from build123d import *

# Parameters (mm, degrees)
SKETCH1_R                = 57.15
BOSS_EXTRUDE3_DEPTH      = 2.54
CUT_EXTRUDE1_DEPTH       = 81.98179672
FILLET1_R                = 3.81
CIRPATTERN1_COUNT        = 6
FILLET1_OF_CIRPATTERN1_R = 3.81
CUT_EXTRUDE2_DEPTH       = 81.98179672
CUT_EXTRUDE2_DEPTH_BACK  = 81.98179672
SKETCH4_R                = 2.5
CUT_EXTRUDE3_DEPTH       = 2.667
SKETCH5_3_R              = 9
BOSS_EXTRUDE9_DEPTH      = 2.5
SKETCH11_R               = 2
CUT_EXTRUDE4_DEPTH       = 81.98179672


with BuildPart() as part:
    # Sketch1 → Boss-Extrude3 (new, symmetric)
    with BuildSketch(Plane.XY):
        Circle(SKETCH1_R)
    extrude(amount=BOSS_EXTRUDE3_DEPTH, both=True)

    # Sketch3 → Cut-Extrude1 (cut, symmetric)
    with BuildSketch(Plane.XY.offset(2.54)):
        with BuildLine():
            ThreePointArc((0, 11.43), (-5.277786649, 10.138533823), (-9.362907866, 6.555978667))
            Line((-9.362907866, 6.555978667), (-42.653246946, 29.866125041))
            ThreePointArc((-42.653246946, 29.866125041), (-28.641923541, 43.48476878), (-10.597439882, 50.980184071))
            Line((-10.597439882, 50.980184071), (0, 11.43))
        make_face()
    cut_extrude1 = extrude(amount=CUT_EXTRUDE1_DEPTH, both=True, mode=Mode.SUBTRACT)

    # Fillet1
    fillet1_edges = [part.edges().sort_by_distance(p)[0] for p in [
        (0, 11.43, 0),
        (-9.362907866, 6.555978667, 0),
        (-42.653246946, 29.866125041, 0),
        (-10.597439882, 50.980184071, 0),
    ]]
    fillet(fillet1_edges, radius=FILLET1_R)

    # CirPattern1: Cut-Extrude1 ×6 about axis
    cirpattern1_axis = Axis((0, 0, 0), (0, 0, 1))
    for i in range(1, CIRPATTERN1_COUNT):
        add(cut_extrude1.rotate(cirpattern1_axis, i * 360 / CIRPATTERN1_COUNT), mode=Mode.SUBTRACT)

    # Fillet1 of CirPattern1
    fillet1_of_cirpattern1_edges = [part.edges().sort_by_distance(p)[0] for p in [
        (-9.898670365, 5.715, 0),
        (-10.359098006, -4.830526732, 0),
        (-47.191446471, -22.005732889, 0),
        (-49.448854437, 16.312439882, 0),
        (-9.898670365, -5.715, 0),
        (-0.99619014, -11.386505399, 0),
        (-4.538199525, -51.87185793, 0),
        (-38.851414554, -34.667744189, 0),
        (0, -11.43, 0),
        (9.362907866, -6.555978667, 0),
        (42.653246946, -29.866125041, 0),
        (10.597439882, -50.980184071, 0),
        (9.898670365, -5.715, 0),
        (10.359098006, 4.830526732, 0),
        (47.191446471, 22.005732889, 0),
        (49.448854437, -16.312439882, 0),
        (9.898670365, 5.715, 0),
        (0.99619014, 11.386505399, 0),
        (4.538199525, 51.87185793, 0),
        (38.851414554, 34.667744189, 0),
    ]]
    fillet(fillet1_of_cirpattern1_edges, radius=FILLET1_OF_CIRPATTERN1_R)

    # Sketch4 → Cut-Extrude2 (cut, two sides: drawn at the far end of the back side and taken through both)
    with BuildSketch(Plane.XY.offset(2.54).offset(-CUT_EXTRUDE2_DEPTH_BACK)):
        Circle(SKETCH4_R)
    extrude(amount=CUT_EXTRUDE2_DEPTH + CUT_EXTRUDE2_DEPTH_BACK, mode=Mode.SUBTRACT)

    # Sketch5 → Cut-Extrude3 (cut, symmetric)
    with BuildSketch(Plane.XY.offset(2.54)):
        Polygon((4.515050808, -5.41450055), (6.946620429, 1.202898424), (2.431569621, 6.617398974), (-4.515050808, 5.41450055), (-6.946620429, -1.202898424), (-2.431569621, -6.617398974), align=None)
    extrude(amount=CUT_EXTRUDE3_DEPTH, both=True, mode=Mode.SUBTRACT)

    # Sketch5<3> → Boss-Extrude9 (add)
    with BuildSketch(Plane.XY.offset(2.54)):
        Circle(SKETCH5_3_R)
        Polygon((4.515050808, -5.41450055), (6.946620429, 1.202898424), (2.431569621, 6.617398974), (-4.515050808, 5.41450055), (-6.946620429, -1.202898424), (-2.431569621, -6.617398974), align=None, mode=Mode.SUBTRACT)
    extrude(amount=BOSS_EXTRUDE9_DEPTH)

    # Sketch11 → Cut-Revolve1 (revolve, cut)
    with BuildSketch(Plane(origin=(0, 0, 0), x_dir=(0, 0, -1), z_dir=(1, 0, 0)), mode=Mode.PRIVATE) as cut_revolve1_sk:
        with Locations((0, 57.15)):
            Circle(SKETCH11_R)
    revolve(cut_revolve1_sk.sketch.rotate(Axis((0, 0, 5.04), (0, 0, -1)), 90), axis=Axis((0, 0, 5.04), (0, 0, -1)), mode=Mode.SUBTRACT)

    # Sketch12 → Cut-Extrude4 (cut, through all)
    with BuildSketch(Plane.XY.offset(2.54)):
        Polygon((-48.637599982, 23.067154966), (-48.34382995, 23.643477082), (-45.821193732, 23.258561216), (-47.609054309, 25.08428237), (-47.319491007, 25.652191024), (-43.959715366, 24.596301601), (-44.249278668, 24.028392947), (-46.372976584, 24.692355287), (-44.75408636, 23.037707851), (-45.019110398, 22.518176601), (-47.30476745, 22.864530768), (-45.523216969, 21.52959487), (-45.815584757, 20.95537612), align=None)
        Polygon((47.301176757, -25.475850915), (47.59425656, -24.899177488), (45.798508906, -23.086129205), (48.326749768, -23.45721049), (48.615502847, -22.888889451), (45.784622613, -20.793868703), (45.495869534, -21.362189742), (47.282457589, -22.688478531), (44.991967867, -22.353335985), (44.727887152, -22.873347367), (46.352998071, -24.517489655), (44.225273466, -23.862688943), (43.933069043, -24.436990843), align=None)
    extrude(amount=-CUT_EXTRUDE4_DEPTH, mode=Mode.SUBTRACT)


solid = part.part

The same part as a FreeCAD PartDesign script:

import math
import FreeCAD as App
import Part
import Sketcher
from FreeCAD import Vector
Q = App.Units.Quantity


def edges_at(feature, points):
    """Names of the edges that pass closest to the given points."""
    edges = feature.Shape.Edges
    near = lambda p: min(range(len(edges)), key=lambda i: edges[i].distToShape(Part.Vertex(*p))[0])
    return sorted({f"Edge{near(p) + 1}" for p in points})


def add_polygon(sketch, points):
    """Adds a closed chain of lines whose ends are joined by coincident constraints."""
    first, n = sketch.GeometryCount, len(points)
    for a, b in zip(points, points[1:] + points[:1]):
        sketch.addGeometry(Part.LineSegment(App.Vector(*a, 0), App.Vector(*b, 0)), False)
    for i in range(n):
        sketch.addConstraint(Sketcher.Constraint("Coincident", first + i, 2, first + (i + 1) % n, 1))

doc = App.newDocument("Part")
body = doc.addObject("PartDesign::Body", "Body")

# Sketch on XY plane
sketch1 = body.newObject("Sketcher::SketchObject", "Sketch")
sketch1.AttachmentSupport = (doc.getObject("XY_Plane"), [""])
sketch1.MapMode = "FlatFace"
sketch1.addGeometry(Part.Circle(Vector(0, 0, 0), Vector(0, 0, 1), 57.15), False)
sketch1.addConstraint([
    Sketcher.Constraint("Coincident", 0, 3, -1, 1),
    Sketcher.Constraint("Diameter", 0, Q("4.5 in")),
])
pad1 = body.newObject("PartDesign::Pad", "Pad")
pad1.Profile = sketch1
pad1.Length = Q("0.2 in")
pad1.Midplane = True

# Sketch on XY plane
sketch2 = body.newObject("Sketcher::SketchObject", "Sketch001")
sketch2.AttachmentSupport = (doc.getObject("XY_Plane"), [""])
sketch2.MapMode = "FlatFace"
sketch2.AttachmentOffset = App.Placement(Vector(0, 0, 0.1 * 25.4), App.Rotation())
sketch2.addGeometry([
    Part.ArcOfCircle(Part.Circle(Vector(0, 0, 0), Vector(0, 0, 1), 11.43), math.radians(90), math.radians(145)),
    Part.LineSegment(Vector(0, 11.43, 0), Vector(-10.59744, 50.980184, 0)),
    Part.ArcOfCircle(Part.Circle(Vector(0, 0, 0), Vector(0, 0, 1), 52.07), math.radians(101.743047), math.radians(145)),
    Part.LineSegment(Vector(-42.653247, 29.866125, 0), Vector(-9.362908, 6.555979, 0)),
], False)
sketch2.addConstraint([
    Sketcher.Constraint("Coincident", 0, 1, 1, 1),
    Sketcher.Constraint("Coincident", 1, 2, 2, 1),
    Sketcher.Constraint("Coincident", 2, 2, 3, 1),
    Sketcher.Constraint("Coincident", 3, 2, 0, 2),
    Sketcher.Constraint("Coincident", 0, 3, -1, 1),
    Sketcher.Constraint("Coincident", 2, 3, -1, 1),
    Sketcher.Constraint("PointOnObject", 0, 1, -2),
    Sketcher.Constraint("Radius", 0, Q("0.45 in")),
    Sketcher.Constraint("Radius", 2, Q("2.05 in")),
    Sketcher.Constraint("Angle", 1, Q("105 deg")),
    Sketcher.Constraint("Angle", 3, Q("-35 deg")),
    Sketcher.Constraint("DistanceY", -1, 1, 3, 2, 6.555979),
])
pocket1 = body.newObject("PartDesign::Pocket", "Pocket")
pocket1.Profile = sketch2
pocket1.Length = 163.963593
pocket1.Midplane = True
doc.recompute()

fillet = body.newObject("PartDesign::Fillet", "Fillet")
fillet.Base = (pocket1, edges_at(pocket1, [
    (0, 11.43, 0),
    (-9.363, 6.556, 0),
    (-42.653, 29.866, 0),
    (-10.597, 50.98, 0),
]))
fillet.Radius = Q("0.15 in")
doc.recompute()

polarpattern = body.newObject("PartDesign::PolarPattern", "PolarPattern")
polarpattern.Originals = [pocket1]
polarpattern.Axis = (doc.getObject("Z_Axis"), [""])
polarpattern.Angle = 360
polarpattern.Occurrences = 6
body.Tip = polarpattern
doc.recompute()

fillet2 = body.newObject("PartDesign::Fillet", "Fillet001")
fillet2.Base = (polarpattern, edges_at(polarpattern, [
    (-9.899, 5.715, 0),
    (-10.359, -4.831, 0),
    (-47.191, -22.006, 0),
    (-49.449, 16.312, 0),
    (-9.899, -5.715, 0),
    (-0.996, -11.387, 0),
    (-4.538, -51.872, 0),
    (-38.851, -34.668, 0),
    (0, -11.43, 0),
    (9.363, -6.556, 0),
    (42.653, -29.866, 0),
    (10.597, -50.98, 0),
    (9.899, -5.715, 0),
    (10.359, 4.831, 0),
    (47.191, 22.006, 0),
    (49.449, -16.312, 0),
    (9.899, 5.715, 0),
    (0.996, 11.387, 0),
    (4.538, 51.872, 0),
    (38.851, 34.668, 0),
]))
fillet2.Radius = Q("0.15 in")

# Sketch on XY plane
sketch3 = body.newObject("Sketcher::SketchObject", "Sketch002")
sketch3.AttachmentSupport = (doc.getObject("XY_Plane"), [""])
sketch3.MapMode = "FlatFace"
sketch3.AttachmentOffset = App.Placement(Vector(0, 0, 0.1 * 25.4), App.Rotation())
sketch3.addGeometry(Part.Circle(Vector(0, 0, 0), Vector(0, 0, 1), 2.5), False)
sketch3.addConstraint([
    Sketcher.Constraint("Coincident", 0, 3, -1, 1),
    Sketcher.Constraint("Diameter", 0, 5.0),
])
pocket2 = body.newObject("PartDesign::Pocket", "Pocket001")
pocket2.Profile = sketch3
pocket2.Type = "ThroughAll"
pocket2.Midplane = True

# Sketch on XY plane
sketch4 = body.newObject("Sketcher::SketchObject", "Sketch003")
sketch4.AttachmentSupport = (doc.getObject("XY_Plane"), [""])
sketch4.MapMode = "FlatFace"
sketch4.AttachmentOffset = App.Placement(Vector(0, 0, 0.1 * 25.4), App.Rotation())
add_polygon(sketch4, [(4.515051, -5.414501), (6.94662, 1.202898), (2.43157, 6.617399), (-4.515051, 5.414501), (-6.94662, -1.202898), (-2.43157, -6.617399)])  # lines 0-5
sketch4.addConstraint([
    Sketcher.Constraint("Symmetric", 0, 2, 3, 2, -1, 1),
    Sketcher.Constraint("Symmetric", 1, 2, 4, 2, -1, 1),
    Sketcher.Constraint("Symmetric", 2, 2, 5, 2, -1, 1),
    Sketcher.Constraint("Equal", 0, 1),
    Sketcher.Constraint("Equal", 1, 2),
    Sketcher.Constraint("Distance", 0, 7.05),
    Sketcher.Constraint("DistanceY", -1, 1, 0, 2, 1.202898),
    Sketcher.Constraint("DistanceY", -1, 1, 1, 2, 6.617399),
    Sketcher.Constraint("DistanceY", -1, 1, 2, 2, 5.414501),
])
pocket3 = body.newObject("PartDesign::Pocket", "Pocket002")
pocket3.Profile = sketch4
pocket3.Length = Q("0.21 in")
pocket3.Midplane = True

# Sketch on XY plane
sketch5 = body.newObject("Sketcher::SketchObject", "Sketch004")
sketch5.AttachmentSupport = (doc.getObject("XY_Plane"), [""])
sketch5.MapMode = "FlatFace"
sketch5.AttachmentOffset = App.Placement(Vector(0, 0, 0.1 * 25.4), App.Rotation())
sketch5.addGeometry(Part.Circle(Vector(0, 0, 0), Vector(0, 0, 1), 9), False)  # 0
add_polygon(sketch5, [(6.94662, 1.202898), (4.515051, -5.414501), (-2.43157, -6.617399), (-6.94662, -1.202898), (-4.515051, 5.414501), (2.43157, 6.617399)])  # lines 1-6
sketch5.addConstraint([
    Sketcher.Constraint("Coincident", 0, 3, -1, 1),
    Sketcher.Constraint("Symmetric", 1, 2, 4, 2, -1, 1),
    Sketcher.Constraint("Symmetric", 2, 2, 5, 2, -1, 1),
    Sketcher.Constraint("Symmetric", 3, 2, 6, 2, -1, 1),
    Sketcher.Constraint("Equal", 1, 2),
    Sketcher.Constraint("Equal", 2, 3),
    Sketcher.Constraint("Diameter", 0, 18.0),
    Sketcher.Constraint("Distance", 1, 7.05),
    Sketcher.Constraint("DistanceY", 1, 2, -1, 1, 5.414501),
    Sketcher.Constraint("DistanceY", 2, 2, -1, 1, 6.617399),
    Sketcher.Constraint("DistanceY", 3, 2, -1, 1, 1.202898),
])
pad2 = body.newObject("PartDesign::Pad", "Pad001")
pad2.Profile = sketch5
pad2.Length = 2.5

# Sketch on YZ plane
sketch6 = body.newObject("Sketcher::SketchObject", "Sketch005")
sketch6.AttachmentSupport = (doc.getObject("YZ_Plane"), [""])
sketch6.MapMode = "FlatFace"
sketch6.addGeometry(Part.Circle(Vector(57.15, 0, 0), Vector(0, 0, 1), 2), False)
sketch6.addConstraint([
    Sketcher.Constraint("PointOnObject", 0, 3, -1),
    Sketcher.Constraint("Diameter", 0, 4.0),
    Sketcher.Constraint("DistanceX", -1, 1, 0, 3, Q("2.25 in")),
])
groove = body.newObject("PartDesign::Groove", "Groove")
groove.Profile = sketch6
groove.ReferenceAxis = (sketch6, ["V_Axis"])
groove.Angle = 360

# Sketch on XY plane
sketch7 = body.newObject("Sketcher::SketchObject", "Sketch006")
sketch7.AttachmentSupport = (doc.getObject("XY_Plane"), [""])
sketch7.MapMode = "FlatFace"
sketch7.AttachmentOffset = App.Placement(Vector(0, 0, 0.1 * 25.4), App.Rotation())
add_polygon(sketch7, [(-48.34383, 23.643477), (-48.6376, 23.067155), (-45.815585, 20.955376), (-45.523217, 21.529595), (-47.304767, 22.864531), (-45.01911, 22.518177), (-44.754086, 23.037708), (-46.372977, 24.692355), (-44.249279, 24.028393), (-43.959715, 24.596302), (-47.319491, 25.652191), (-47.609054, 25.084282), (-45.821194, 23.258561)])  # lines 0-12
add_polygon(sketch7, [(47.301177, -25.475851), (47.594257, -24.899177), (45.798509, -23.086129), (48.32675, -23.45721), (48.615503, -22.888889), (45.784623, -20.793869), (45.49587, -21.36219), (47.282458, -22.688479), (44.991968, -22.353336), (44.727887, -22.873347), (46.352998, -24.51749), (44.225273, -23.862689), (43.933069, -24.436991)])  # lines 13-25
sketch7.addConstraint([
    Sketcher.Constraint("Parallel", 8, 10),
    Sketcher.Constraint("Parallel", 16, 18),
    Sketcher.Constraint("Equal", 8, 10),
    Sketcher.Constraint("Equal", 0, 13),
    Sketcher.Constraint("Equal", 12, 14),
    Sketcher.Constraint("Equal", 11, 15),
    Sketcher.Constraint("Equal", 10, 16),
    Sketcher.Constraint("Equal", 9, 17),
    Sketcher.Constraint("Equal", 16, 18),
    Sketcher.Constraint("Equal", 7, 19),
    Sketcher.Constraint("Equal", 6, 20),
    Sketcher.Constraint("Equal", 5, 21),
    Sketcher.Constraint("Equal", 4, 22),
    Sketcher.Constraint("Equal", 3, 23),
    Sketcher.Constraint("Equal", 2, 24),
    Sketcher.Constraint("Equal", 1, 25),
    Sketcher.Constraint("DistanceX", 7, 2, 8, 2, Q("0.0114001 in")),
    Sketcher.Constraint("DistanceX", 5, 2, 15, 2, Q("3.6645998 in")),
    Sketcher.Constraint("DistanceX", 0, 2, -1, 1, 48.6376),
    Sketcher.Constraint("DistanceY", -1, 1, 8, 2, 24.596302),
    Sketcher.Constraint("DistanceX", -1, 1, 22, 2, 46.352998),
    Sketcher.Constraint("DistanceY", 1, 2, 4, 2, 1.5628),
    Sketcher.Constraint("DistanceX", 1, 2, 5, 2, 1.061498),
    Sketcher.Constraint("DistanceY", 0, 2, 6, 2, 1.6252),
    Sketcher.Constraint("DistanceY", 2, 2, 7, 2, 2.498798),
    Sketcher.Constraint("DistanceX", 2, 2, 8, 2, 1.563502),
    Sketcher.Constraint("DistanceY", 7, 2, 9, 2, 1.623798),
    Sketcher.Constraint("DistanceY", 16, 2, 18, 2, 1.5267),
    Sketcher.Constraint("DistanceX", 19, 2, 13, 2, 0.311799),
    Sketcher.Constraint("DistanceY", 13, 2, 19, 2, 2.210699),
    Sketcher.Constraint("DistanceX", 20, 2, 18, 2, 0.503902),
    Sketcher.Constraint("DistanceY", 22, 2, 23, 2, 0.654801),
    Sketcher.Constraint("DistanceY", 23, 2, 18, 2, 2.500499),
    Sketcher.Constraint("DistanceY", 24, 2, 23, 2, 0.574302),
    Sketcher.Constraint("DistanceX", 24, 2, 20, 2, 1.058899),
    Sketcher.Constraint("Distance", 1, 3.524682),
    Sketcher.Constraint("Distance", 4, 2.31175),
    Sketcher.Constraint("Distance", 6, 2.314879),
    Sketcher.Constraint("Distance", 7, 2.225071),
    Sketcher.Constraint("Distance", 8, 0.637469),
    Sketcher.Constraint("Distance", 9, 3.521789),
    Sketcher.Constraint("Distance", 11, 2.555328),
    Sketcher.Constraint("DistanceY", -1, 1, 3, 2, 22.864531),
    Sketcher.Constraint("DistanceX", 4, 2, -1, 1, 45.01911),
    Sketcher.Constraint("DistanceX", 7, 2, -1, 1, 44.249279),
    Sketcher.Constraint("DistanceY", -1, 1, 11, 2, 23.258561),
    Sketcher.Constraint("DistanceX", 12, 2, -1, 1, 48.34383),
    Sketcher.Constraint("DistanceX", -1, 1, 14, 2, 45.798509),
    Sketcher.Constraint("DistanceY", 14, 2, -1, 1, 23.086129),
    Sketcher.Constraint("DistanceX", -1, 1, 15, 2, 48.32675),
    Sketcher.Constraint("DistanceY", 16, 2, -1, 1, 22.888889),
    Sketcher.Constraint("DistanceY", 19, 2, -1, 1, 22.688479),
])
pocket4 = body.newObject("PartDesign::Pocket", "Pocket003")
pocket4.Profile = sketch7
pocket4.Type = "ThroughAll"

doc.recompute()
